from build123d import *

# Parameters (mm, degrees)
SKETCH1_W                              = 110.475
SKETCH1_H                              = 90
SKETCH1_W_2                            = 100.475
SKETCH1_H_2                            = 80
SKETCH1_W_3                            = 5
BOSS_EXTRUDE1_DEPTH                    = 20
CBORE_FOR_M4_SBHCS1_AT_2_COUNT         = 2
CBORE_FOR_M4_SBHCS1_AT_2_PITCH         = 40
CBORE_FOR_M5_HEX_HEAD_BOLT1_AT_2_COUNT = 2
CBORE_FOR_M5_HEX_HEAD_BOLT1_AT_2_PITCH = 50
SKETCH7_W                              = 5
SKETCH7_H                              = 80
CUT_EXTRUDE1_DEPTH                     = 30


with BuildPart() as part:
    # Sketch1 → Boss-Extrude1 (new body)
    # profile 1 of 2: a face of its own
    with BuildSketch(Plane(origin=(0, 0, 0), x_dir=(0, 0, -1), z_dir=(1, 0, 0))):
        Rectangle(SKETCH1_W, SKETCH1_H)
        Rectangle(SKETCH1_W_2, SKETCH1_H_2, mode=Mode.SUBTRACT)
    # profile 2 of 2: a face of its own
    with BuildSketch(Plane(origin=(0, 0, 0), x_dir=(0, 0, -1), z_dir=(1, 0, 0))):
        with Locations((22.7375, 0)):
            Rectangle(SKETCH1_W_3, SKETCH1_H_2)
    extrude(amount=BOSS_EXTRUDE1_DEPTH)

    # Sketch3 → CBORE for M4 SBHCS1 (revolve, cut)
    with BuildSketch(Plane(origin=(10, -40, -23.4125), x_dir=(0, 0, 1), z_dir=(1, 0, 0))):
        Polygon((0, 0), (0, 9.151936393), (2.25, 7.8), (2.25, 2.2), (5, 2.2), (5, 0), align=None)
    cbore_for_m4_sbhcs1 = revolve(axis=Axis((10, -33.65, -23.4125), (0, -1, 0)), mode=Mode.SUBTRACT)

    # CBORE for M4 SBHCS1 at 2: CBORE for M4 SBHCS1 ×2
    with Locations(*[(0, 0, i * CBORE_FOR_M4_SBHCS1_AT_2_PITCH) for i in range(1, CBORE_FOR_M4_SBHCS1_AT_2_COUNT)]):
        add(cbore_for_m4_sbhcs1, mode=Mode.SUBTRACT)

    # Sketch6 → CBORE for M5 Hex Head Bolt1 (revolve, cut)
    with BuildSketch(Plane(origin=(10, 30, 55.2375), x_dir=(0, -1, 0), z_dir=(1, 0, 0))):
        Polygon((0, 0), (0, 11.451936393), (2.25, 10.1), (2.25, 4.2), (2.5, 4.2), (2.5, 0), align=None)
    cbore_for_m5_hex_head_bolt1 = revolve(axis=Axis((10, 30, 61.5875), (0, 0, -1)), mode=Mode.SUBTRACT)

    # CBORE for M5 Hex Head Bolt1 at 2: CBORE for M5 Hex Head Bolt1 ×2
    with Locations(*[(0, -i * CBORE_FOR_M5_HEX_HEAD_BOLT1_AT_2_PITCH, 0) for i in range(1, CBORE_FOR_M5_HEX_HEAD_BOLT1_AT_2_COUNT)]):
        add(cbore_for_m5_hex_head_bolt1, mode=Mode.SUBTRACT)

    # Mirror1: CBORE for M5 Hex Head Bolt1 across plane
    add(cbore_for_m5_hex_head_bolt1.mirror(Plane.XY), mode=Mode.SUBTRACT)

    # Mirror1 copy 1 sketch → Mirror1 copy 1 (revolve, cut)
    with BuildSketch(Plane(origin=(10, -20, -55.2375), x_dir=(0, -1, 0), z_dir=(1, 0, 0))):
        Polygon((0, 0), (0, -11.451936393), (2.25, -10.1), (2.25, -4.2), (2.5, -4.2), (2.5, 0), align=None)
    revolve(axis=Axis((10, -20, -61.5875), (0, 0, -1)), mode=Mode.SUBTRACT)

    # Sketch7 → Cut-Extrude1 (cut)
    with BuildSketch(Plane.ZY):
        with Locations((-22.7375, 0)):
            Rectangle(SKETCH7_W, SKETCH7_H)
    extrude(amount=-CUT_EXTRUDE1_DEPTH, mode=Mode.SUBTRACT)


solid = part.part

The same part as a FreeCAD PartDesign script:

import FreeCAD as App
import Part
import Sketcher

V = App.Vector
Q = App.Units.Quantity

doc = App.newDocument("Part")
body = doc.addObject("PartDesign::Body", "Body")

# Sketch on YZ plane
sketch1 = body.newObject("Sketcher::SketchObject", "Sketch")
sketch1.AttachmentSupport = (doc.getObject("YZ_Plane"), [""])
sketch1.MapMode = "FlatFace"
sketch1.addGeometry([
    Part.LineSegment(V(45, 55.2375, 0), V(-45, 55.2375, 0)),  # 0
    Part.LineSegment(V(-45, 55.2375, 0), V(-45, -55.2375, 0)),  # 1
    Part.LineSegment(V(-45, -55.2375, 0), V(45, -55.2375, 0)),  # 2
    Part.LineSegment(V(45, -55.2375, 0), V(45, 55.2375, 0)),  # 3
    Part.LineSegment(V(-40, -20.2375, 0), V(-40, 50.2375, 0)),  # 4
    Part.LineSegment(V(-40, 50.2375, 0), V(40, 50.2375, 0)),  # 5
    Part.LineSegment(V(40, 50.2375, 0), V(40, -20.2375, 0)),  # 6
    Part.LineSegment(V(40, -20.2375, 0), V(-40, -20.2375, 0)),  # 7
    Part.LineSegment(V(-40, -50.2375, 0), V(-40, -25.2375, 0)),  # 8
    Part.LineSegment(V(-40, -25.2375, 0), V(40, -25.2375, 0)),  # 9
    Part.LineSegment(V(40, -25.2375, 0), V(40, -50.2375, 0)),  # 10
    Part.LineSegment(V(40, -50.2375, 0), V(-40, -50.2375, 0)),  # 11
], False)
sketch1.addConstraint([
    Sketcher.Constraint("Coincident", 0, 2, 1, 1),
    Sketcher.Constraint("Coincident", 1, 2, 2, 1),
    Sketcher.Constraint("Coincident", 2, 2, 3, 1),
    Sketcher.Constraint("Coincident", 3, 2, 0, 1),
    Sketcher.Constraint("Coincident", 4, 2, 5, 1),
    Sketcher.Constraint("Coincident", 5, 2, 6, 1),
    Sketcher.Constraint("Coincident", 6, 2, 7, 1),
    Sketcher.Constraint("Coincident", 7, 2, 4, 1),
    Sketcher.Constraint("Coincident", 8, 2, 9, 1),
    Sketcher.Constraint("Coincident", 9, 2, 10, 1),
    Sketcher.Constraint("Coincident", 10, 2, 11, 1),
    Sketcher.Constraint("Coincident", 11, 2, 8, 1),
    Sketcher.Constraint("Horizontal", 0),
    Sketcher.Constraint("Vertical", 1),
    Sketcher.Constraint("Horizontal", 2),
    Sketcher.Constraint("Vertical", 3),
    Sketcher.Constraint("Vertical", 4),
    Sketcher.Constraint("Horizontal", 5),
    Sketcher.Constraint("Vertical", 6),
    Sketcher.Constraint("Horizontal", 7),
    Sketcher.Constraint("Vertical", 8),
    Sketcher.Constraint("Horizontal", 9),
    Sketcher.Constraint("Vertical", 10),
    Sketcher.Constraint("Horizontal", 11),
    Sketcher.Constraint("Symmetric", 0, 2, 2, 2, -1, 1),
    Sketcher.Constraint("Symmetric", 4, 2, 10, 2, -1, 1),
    Sketcher.Constraint("Vertical", 7, 2, 8, 2),
    Sketcher.Constraint("Vertical", 6, 2, 9, 2),
    Sketcher.Constraint("DistanceX", 0, 2, 0, 1, Q("90 mm")),
    Sketcher.Constraint("DistanceX", 5, 1, 5, 2, Q("80 mm")),
    Sketcher.Constraint("DistanceY", 8, 1, 8, 2, Q("25 mm")),
    Sketcher.Constraint("DistanceY", 4, 2, 0, 2, Q("5 mm")),
    Sketcher.Constraint("DistanceY", 2, 2, 6, 2, Q("35 mm")),
    Sketcher.Constraint("DistanceY", 1, 2, 1, 1, Q("110.475 mm")),
])
pad1 = body.newObject("PartDesign::Pad", "Pad")
pad1.Profile = sketch1
pad1.Length = 20

# Sketch on YZ plane
sketch2 = body.newObject("Sketcher::SketchObject", "Sketch001")
sketch2.AttachmentSupport = (doc.getObject("YZ_Plane"), [""])
sketch2.MapMode = "FlatFace"
sketch2.AttachmentOffset = App.Placement(V(0, 0, 10), App.Rotation())
sketch2.addGeometry([
    Part.LineSegment(V(-49.151936, -23.4125, 0), V(-40, -23.4125, 0)),  # 0
    Part.LineSegment(V(-40, -23.4125, 0), V(-40, -18.4125, 0)),  # 1
    Part.LineSegment(V(-40, -18.4125, 0), V(-42.2, -18.4125, 0)),  # 2
    Part.LineSegment(V(-42.2, -18.4125, 0), V(-42.2, -21.1625, 0)),  # 3
    Part.LineSegment(V(-42.2, -21.1625, 0), V(-47.8, -21.1625, 0)),  # 4
    Part.LineSegment(V(-47.8, -21.1625, 0), V(-49.151936, -23.4125, 0)),  # 5
], False)
sketch2.addGeometry(Part.LineSegment(V(-40, -23.4125, 0), V(-49.151936, -23.4125, 0)), True)  # axis
sketch2.addConstraint([
    Sketcher.Constraint("Coincident", 0, 2, 1, 1),
    Sketcher.Constraint("Coincident", 1, 2, 2, 1),
    Sketcher.Constraint("Coincident", 2, 2, 3, 1),
    Sketcher.Constraint("Coincident", 3, 2, 4, 1),
    Sketcher.Constraint("Coincident", 4, 2, 5, 1),
    Sketcher.Constraint("Coincident", 5, 2, 0, 1),
    Sketcher.Constraint("Horizontal", 0),
    Sketcher.Constraint("Vertical", 1),
    Sketcher.Constraint("Horizontal", 2),
    Sketcher.Constraint("Vertical", 3),
    Sketcher.Constraint("Horizontal", 4),
    Sketcher.Constraint("Horizontal", 6),
    Sketcher.Constraint("Coincident", 6, 1, 0, 2),
    Sketcher.Constraint("Equal", 0, 6),
    Sketcher.Constraint("DistanceY", 1, 1, 1, 2, Q("5 mm")),
    Sketcher.Constraint("Angle", 5, Q("-121 deg")),
    Sketcher.Constraint("DistanceX", 2, 2, 2, 1, Q("2.2 mm")),
    Sketcher.Constraint("DistanceX", 4, 2, 4, 1, Q("5.6 mm")),
    Sketcher.Constraint("DistanceX", 0, 2, -1, 1, Q("40 mm")),
    Sketcher.Constraint("DistanceY", 3, 2, 3, 1, Q("2.75 mm")),
    Sketcher.Constraint("DistanceY", 0, 2, -1, 1, Q("23.4125 mm")),
])
groove = body.newObject("PartDesign::Groove", "Groove")
groove.Profile = sketch2
groove.ReferenceAxis = (sketch2, ["Axis0"])
groove.Angle = 360
doc.recompute()

linearpattern = body.newObject("PartDesign::LinearPattern", "LinearPattern")
linearpattern.Originals = [groove]
linearpattern.Direction = (doc.getObject("Z_Axis"), [""])
linearpattern.Mode = "offset"
linearpattern.Offset = 40
linearpattern.Occurrences = 2
body.Tip = linearpattern

# Sketch on YZ plane
sketch3 = body.newObject("Sketcher::SketchObject", "Sketch002")
sketch3.AttachmentSupport = (doc.getObject("YZ_Plane"), [""])
sketch3.MapMode = "FlatFace"
sketch3.AttachmentOffset = App.Placement(V(0, 0, 10), App.Rotation())
sketch3.addGeometry([
    Part.LineSegment(V(30, 43.785564, 0), V(30, 55.2375, 0)),  # 0
    Part.LineSegment(V(30, 55.2375, 0), V(27.5, 55.2375, 0)),  # 1
    Part.LineSegment(V(27.5, 55.2375, 0), V(27.5, 51.0375, 0)),  # 2
    Part.LineSegment(V(27.5, 51.0375, 0), V(27.75, 51.0375, 0)),  # 3
    Part.LineSegment(V(27.75, 51.0375, 0), V(27.75, 45.1375, 0)),  # 4
    Part.LineSegment(V(27.75, 45.1375, 0), V(30, 43.785564, 0)),  # 5
], False)
sketch3.addGeometry(Part.LineSegment(V(30, 55.2375, 0), V(30, 43.785564, 0)), True)  # axis
sketch3.addConstraint([
    Sketcher.Constraint("Coincident", 0, 2, 1, 1),
    Sketcher.Constraint("Coincident", 1, 2, 2, 1),
    Sketcher.Constraint("Coincident", 2, 2, 3, 1),
    Sketcher.Constraint("Coincident", 3, 2, 4, 1),
    Sketcher.Constraint("Coincident", 4, 2, 5, 1),
    Sketcher.Constraint("Coincident", 5, 2, 0, 1),
    Sketcher.Constraint("Vertical", 0),
    Sketcher.Constraint("Horizontal", 1),
    Sketcher.Constraint("Vertical", 2),
    Sketcher.Constraint("Horizontal", 3),
    Sketcher.Constraint("Vertical", 4),
    Sketcher.Constraint("Vertical", 6),
    Sketcher.Constraint("Coincident", 6, 1, 0, 2),
    Sketcher.Constraint("Equal", 0, 6),
    Sketcher.Constraint("Angle", 5, Q("-31 deg")),
    Sketcher.Constraint("DistanceX", 1, 2, 1, 1, Q("2.5 mm")),
    Sketcher.Constraint("DistanceY", 2, 2, 2, 1, Q("4.2 mm")),
    Sketcher.Constraint("DistanceY", 4, 2, 4, 1, Q("5.9 mm")),
    Sketcher.Constraint("DistanceX", -1, 1, 0, 2, Q("30 mm")),
    Sketcher.Constraint("DistanceX", 3, 1, 3, 2, Q("0.25 mm")),
    Sketcher.Constraint("DistanceY", -1, 1, 0, 2, Q("55.2375 mm")),
])
groove2 = body.newObject("PartDesign::Groove", "Groove001")
groove2.Profile = sketch3
groove2.ReferenceAxis = (sketch3, ["Axis0"])
groove2.Angle = 360
doc.recompute()

linearpattern2 = body.newObject("PartDesign::LinearPattern", "LinearPattern001")
linearpattern2.Originals = [groove2]
linearpattern2.Direction = (doc.getObject("Y_Axis"), [""])
linearpattern2.Mode = "offset"
linearpattern2.Offset = 50
linearpattern2.Occurrences = 2
linearpattern2.Reversed = True
body.Tip = linearpattern2
doc.recompute()

mirrored = body.newObject("PartDesign::Mirrored", "Mirrored")
mirrored.Originals = [groove2]
mirrored.MirrorPlane = (doc.getObject("XY_Plane"), [""])
body.Tip = mirrored

# Sketch on YZ plane
sketch4 = body.newObject("Sketcher::SketchObject", "Sketch003")
sketch4.AttachmentSupport = (doc.getObject("YZ_Plane"), [""])
sketch4.MapMode = "FlatFace"
sketch4.AttachmentOffset = App.Placement(V(0, 0, 10), App.Rotation())
sketch4.addGeometry([
    Part.LineSegment(V(-20, -55.2375, 0), V(-20, -43.785564, 0)),  # 0
    Part.LineSegment(V(-20, -43.785564, 0), V(-22.25, -45.1375, 0)),  # 1
    Part.LineSegment(V(-22.25, -45.1375, 0), V(-22.25, -51.0375, 0)),  # 2
    Part.LineSegment(V(-22.25, -51.0375, 0), V(-22.5, -51.0375, 0)),  # 3
    Part.LineSegment(V(-22.5, -51.0375, 0), V(-22.5, -55.2375, 0)),  # 4
    Part.LineSegment(V(-22.5, -55.2375, 0), V(-20, -55.2375, 0)),  # 5
], False)
sketch4.addGeometry(Part.LineSegment(V(-20, -43.785564, 0), V(-20, -55.2375, 0)), True)  # axis
sketch4.addConstraint([
    Sketcher.Constraint("Coincident", 0, 2, 1, 1),
    Sketcher.Constraint("Coincident", 1, 2, 2, 1),
    Sketcher.Constraint("Coincident", 2, 2, 3, 1),
    Sketcher.Constraint("Coincident", 3, 2, 4, 1),
    Sketcher.Constraint("Coincident", 4, 2, 5, 1),
    Sketcher.Constraint("Coincident", 5, 2, 0, 1),
    Sketcher.Constraint("Vertical", 0),
    Sketcher.Constraint("Vertical", 2),
    Sketcher.Constraint("Horizontal", 3),
    Sketcher.Constraint("Vertical", 4),
    Sketcher.Constraint("Horizontal", 5),
    Sketcher.Constraint("Vertical", 6),
    Sketcher.Constraint("Coincident", 6, 1, 0, 2),
    Sketcher.Constraint("Horizontal", 4, 2, 6, 2),
    Sketcher.Constraint("Angle", 1, Q("-149 deg")),
    Sketcher.Constraint("DistanceX", 5, 1, 5, 2, Q("2.5 mm")),
    Sketcher.Constraint("DistanceY", 2, 2, 2, 1, Q("5.9 mm")),
    Sketcher.Constraint("DistanceY", 4, 2, 4, 1, Q("4.2 mm")),
    Sketcher.Constraint("DistanceX", 0, 2, -1, 1, Q("20 mm")),
    Sketcher.Constraint("DistanceX", 3, 2, 3, 1, Q("0.25 mm")),
    Sketcher.Constraint("DistanceY", 1, 2, -1, 1, Q("45.1375 mm")),
])
groove3 = body.newObject("PartDesign::Groove", "Groove002")
groove3.Profile = sketch4
groove3.ReferenceAxis = (sketch4, ["Axis0"])
groove3.Angle = 360

# Sketch on YZ plane
sketch5 = body.newObject("Sketcher::SketchObject", "Sketch004")
sketch5.AttachmentSupport = (doc.getObject("YZ_Plane"), [""])
sketch5.MapMode = "FlatFace"
sketch5.addGeometry([
    Part.LineSegment(V(40, -25.2375, 0), V(-40, -25.2375, 0)),
    Part.LineSegment(V(-40, -25.2375, 0), V(-40, -20.2375, 0)),
    Part.LineSegment(V(-40, -20.2375, 0), V(40, -20.2375, 0)),
    Part.LineSegment(V(40, -20.2375, 0), V(40, -25.2375, 0)),
], False)
sketch5.addConstraint([
    Sketcher.Constraint("Coincident", 0, 2, 1, 1),
    Sketcher.Constraint("Coincident", 1, 2, 2, 1),
    Sketcher.Constraint("Coincident", 2, 2, 3, 1),
    Sketcher.Constraint("Coincident", 3, 2, 0, 1),
    Sketcher.Constraint("Horizontal", 0),
    Sketcher.Constraint("Vertical", 1),
    Sketcher.Constraint("Horizontal", 2),
    Sketcher.Constraint("Vertical", 3),
    Sketcher.Constraint("DistanceX", 0, 2, 0, 1, Q("80 mm")),
    Sketcher.Constraint("DistanceY", 1, 1, 1, 2, Q("5 mm")),
    Sketcher.Constraint("DistanceX", 0, 2, -1, 1, Q("40 mm")),
    Sketcher.Constraint("DistanceY", 0, 2, -1, 1, Q("25.2375 mm")),
])
pocket1 = body.newObject("PartDesign::Pocket", "Pocket")
pocket1.Profile = sketch5
pocket1.Length = 30
pocket1.Reversed = True

doc.recompute()
